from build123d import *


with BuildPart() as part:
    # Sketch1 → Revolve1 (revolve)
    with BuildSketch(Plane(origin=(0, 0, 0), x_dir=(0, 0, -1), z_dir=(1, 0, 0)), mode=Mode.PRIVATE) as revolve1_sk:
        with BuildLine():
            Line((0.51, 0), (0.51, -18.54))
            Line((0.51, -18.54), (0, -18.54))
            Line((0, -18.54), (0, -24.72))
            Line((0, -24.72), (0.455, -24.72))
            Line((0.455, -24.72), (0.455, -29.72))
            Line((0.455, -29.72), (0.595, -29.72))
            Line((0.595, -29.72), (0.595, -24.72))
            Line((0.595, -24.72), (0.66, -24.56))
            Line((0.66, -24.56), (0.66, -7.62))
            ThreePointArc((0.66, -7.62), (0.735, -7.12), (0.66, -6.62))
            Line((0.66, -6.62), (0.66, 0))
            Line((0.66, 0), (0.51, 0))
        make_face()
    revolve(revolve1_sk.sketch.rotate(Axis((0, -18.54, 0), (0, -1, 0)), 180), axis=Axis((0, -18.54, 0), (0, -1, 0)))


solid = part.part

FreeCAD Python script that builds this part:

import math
import FreeCAD as App
import Part
import Sketcher
Q = App.Units.Quantity

doc = App.newDocument("Part")
body = doc.addObject("PartDesign::Body", "Body")

# Sketch on YZ plane
sketch1 = doc.addObject("Sketcher::SketchObject", "Sketch")
body.addObject(sketch1)
sketch1.AttachmentSupport = (doc.YZ_Plane, [""])
sketch1.MapMode = "FlatFace"
sketch1.addGeometry(Part.LineSegment(App.Vector(0, -0.51, 0), App.Vector(-18.54, -0.51, 0)), False)
sketch1.addGeometry(Part.LineSegment(App.Vector(-18.54, -0.51, 0), App.Vector(-18.54, 0, 0)), False)
sketch1.addGeometry(Part.LineSegment(App.Vector(-18.54, 0, 0), App.Vector(-24.72, 0, 0)), False)
sketch1.addGeometry(Part.LineSegment(App.Vector(-24.72, 0, 0), App.Vector(-24.72, -0.46, 0)), False)
sketch1.addGeometry(Part.LineSegment(App.Vector(-24.72, -0.46, 0), App.Vector(-29.72, -0.46, 0)), False)
sketch1.addGeometry(Part.LineSegment(App.Vector(-29.72, -0.46, 0), App.Vector(-29.72, -0.59, 0)), False)
sketch1.addGeometry(Part.LineSegment(App.Vector(-29.72, -0.59, 0), App.Vector(-24.72, -0.59, 0)), False)
sketch1.addGeometry(Part.LineSegment(App.Vector(-24.72, -0.59, 0), App.Vector(-24.56, -0.66, 0)), False)
sketch1.addGeometry(Part.LineSegment(App.Vector(-24.56, -0.66, 0), App.Vector(-7.62, -0.66, 0)), False)
sketch1.addGeometry(Part.ArcOfCircle(Part.Circle(App.Vector(-7.12, 0.97, 0), App.Vector(0, 0, 1), 1.7), math.radians(-107), math.radians(-73)), False)
sketch1.addGeometry(Part.LineSegment(App.Vector(-6.62, -0.66, 0), App.Vector(0, -0.66, 0)), False)
sketch1.addGeometry(Part.LineSegment(App.Vector(0, -0.66, 0), App.Vector(0, -0.51, 0)), False)
sketch1.addConstraint(Sketcher.Constraint("Coincident", 0, 2, 1, 1))
sketch1.addConstraint(Sketcher.Constraint("Coincident", 1, 2, 2, 1))
sketch1.addConstraint(Sketcher.Constraint("Coincident", 2, 2, 3, 1))
sketch1.addConstraint(Sketcher.Constraint("Coincident", 3, 2, 4, 1))
sketch1.addConstraint(Sketcher.Constraint("Coincident", 4, 2, 5, 1))
sketch1.addConstraint(Sketcher.Constraint("Coincident", 5, 2, 6, 1))
sketch1.addConstraint(Sketcher.Constraint("Coincident", 6, 2, 7, 1))
sketch1.addConstraint(Sketcher.Constraint("Coincident", 7, 2, 8, 1))
sketch1.addConstraint(Sketcher.Constraint("Coincident", 8, 2, 9, 1))
sketch1.addConstraint(Sketcher.Constraint("Coincident", 9, 2, 10, 1))
sketch1.addConstraint(Sketcher.Constraint("Coincident", 10, 2, 11, 1))
sketch1.addConstraint(Sketcher.Constraint("Coincident", 11, 2, 0, 1))
sketch1.addConstraint(Sketcher.Constraint("Horizontal", 0))
sketch1.addConstraint(Sketcher.Constraint("Vertical", 1))
sketch1.addConstraint(Sketcher.Constraint("Horizontal", 2))
sketch1.addConstraint(Sketcher.Constraint("Vertical", 3))
sketch1.addConstraint(Sketcher.Constraint("Horizontal", 4))
sketch1.addConstraint(Sketcher.Constraint("Vertical", 5))
sketch1.addConstraint(Sketcher.Constraint("Horizontal", 6))
sketch1.addConstraint(Sketcher.Constraint("Horizontal", 8))
sketch1.addConstraint(Sketcher.Constraint("Horizontal", 10))
sketch1.addConstraint(Sketcher.Constraint("Vertical", 11))
sketch1.addConstraint(Sketcher.Constraint("PointOnObject", 1, 2, -1))
sketch1.addConstraint(Sketcher.Constraint("PointOnObject", 10, 2, -2))
sketch1.addConstraint(Sketcher.Constraint("Horizontal", 8, 2, 9, 2))
sketch1.addConstraint(Sketcher.Constraint("Vertical", 3, 2, 6, 2))
sketch1.addConstraint(Sketcher.Constraint("DistanceX", 4, 2, 4, 1, Q("5 mm")))
sketch1.addConstraint(Sketcher.Constraint("DistanceX", 8, 2, 9, 2, Q("1 mm")))
sketch1.addConstraint(Sketcher.Constraint("DistanceX", 0, 2, 0, 1, Q("18.54 mm")))
sketch1.addConstraint(Sketcher.Constraint("DistanceX", 2, 2, 2, 1, Q("6.18 mm")))
sketch1.addConstraint(Sketcher.Constraint("DistanceX", 8, 1, 8, 2, Q("16.94 mm")))
sketch1.addConstraint(Sketcher.Constraint("DistanceX", 10, 1, 10, 2, Q("6.62 mm")))
sketch1.addConstraint(Sketcher.Constraint("DistanceY", 1, 1, 1, 2, Q("0.51 mm")))
sketch1.addConstraint(Sketcher.Constraint("DistanceY", 5, 2, 5, 1, Q("0.14 mm")))
sketch1.addConstraint(Sketcher.Constraint("DistanceY", 11, 1, 11, 2, Q("0.15 mm")))
sketch1.addConstraint(Sketcher.Constraint("DistanceY", 3, 2, 3, 1, Q("0.455 mm")))
sketch1.addConstraint(Sketcher.Constraint("Radius", 9, Q("1.704167 mm")))
revolution = doc.addObject("PartDesign::Revolution", "Revolution")
body.addObject(revolution)
revolution.Profile = sketch1
revolution.ReferenceAxis = (sketch1, ["H_Axis"])
revolution.Angle = 360

doc.recompute()
